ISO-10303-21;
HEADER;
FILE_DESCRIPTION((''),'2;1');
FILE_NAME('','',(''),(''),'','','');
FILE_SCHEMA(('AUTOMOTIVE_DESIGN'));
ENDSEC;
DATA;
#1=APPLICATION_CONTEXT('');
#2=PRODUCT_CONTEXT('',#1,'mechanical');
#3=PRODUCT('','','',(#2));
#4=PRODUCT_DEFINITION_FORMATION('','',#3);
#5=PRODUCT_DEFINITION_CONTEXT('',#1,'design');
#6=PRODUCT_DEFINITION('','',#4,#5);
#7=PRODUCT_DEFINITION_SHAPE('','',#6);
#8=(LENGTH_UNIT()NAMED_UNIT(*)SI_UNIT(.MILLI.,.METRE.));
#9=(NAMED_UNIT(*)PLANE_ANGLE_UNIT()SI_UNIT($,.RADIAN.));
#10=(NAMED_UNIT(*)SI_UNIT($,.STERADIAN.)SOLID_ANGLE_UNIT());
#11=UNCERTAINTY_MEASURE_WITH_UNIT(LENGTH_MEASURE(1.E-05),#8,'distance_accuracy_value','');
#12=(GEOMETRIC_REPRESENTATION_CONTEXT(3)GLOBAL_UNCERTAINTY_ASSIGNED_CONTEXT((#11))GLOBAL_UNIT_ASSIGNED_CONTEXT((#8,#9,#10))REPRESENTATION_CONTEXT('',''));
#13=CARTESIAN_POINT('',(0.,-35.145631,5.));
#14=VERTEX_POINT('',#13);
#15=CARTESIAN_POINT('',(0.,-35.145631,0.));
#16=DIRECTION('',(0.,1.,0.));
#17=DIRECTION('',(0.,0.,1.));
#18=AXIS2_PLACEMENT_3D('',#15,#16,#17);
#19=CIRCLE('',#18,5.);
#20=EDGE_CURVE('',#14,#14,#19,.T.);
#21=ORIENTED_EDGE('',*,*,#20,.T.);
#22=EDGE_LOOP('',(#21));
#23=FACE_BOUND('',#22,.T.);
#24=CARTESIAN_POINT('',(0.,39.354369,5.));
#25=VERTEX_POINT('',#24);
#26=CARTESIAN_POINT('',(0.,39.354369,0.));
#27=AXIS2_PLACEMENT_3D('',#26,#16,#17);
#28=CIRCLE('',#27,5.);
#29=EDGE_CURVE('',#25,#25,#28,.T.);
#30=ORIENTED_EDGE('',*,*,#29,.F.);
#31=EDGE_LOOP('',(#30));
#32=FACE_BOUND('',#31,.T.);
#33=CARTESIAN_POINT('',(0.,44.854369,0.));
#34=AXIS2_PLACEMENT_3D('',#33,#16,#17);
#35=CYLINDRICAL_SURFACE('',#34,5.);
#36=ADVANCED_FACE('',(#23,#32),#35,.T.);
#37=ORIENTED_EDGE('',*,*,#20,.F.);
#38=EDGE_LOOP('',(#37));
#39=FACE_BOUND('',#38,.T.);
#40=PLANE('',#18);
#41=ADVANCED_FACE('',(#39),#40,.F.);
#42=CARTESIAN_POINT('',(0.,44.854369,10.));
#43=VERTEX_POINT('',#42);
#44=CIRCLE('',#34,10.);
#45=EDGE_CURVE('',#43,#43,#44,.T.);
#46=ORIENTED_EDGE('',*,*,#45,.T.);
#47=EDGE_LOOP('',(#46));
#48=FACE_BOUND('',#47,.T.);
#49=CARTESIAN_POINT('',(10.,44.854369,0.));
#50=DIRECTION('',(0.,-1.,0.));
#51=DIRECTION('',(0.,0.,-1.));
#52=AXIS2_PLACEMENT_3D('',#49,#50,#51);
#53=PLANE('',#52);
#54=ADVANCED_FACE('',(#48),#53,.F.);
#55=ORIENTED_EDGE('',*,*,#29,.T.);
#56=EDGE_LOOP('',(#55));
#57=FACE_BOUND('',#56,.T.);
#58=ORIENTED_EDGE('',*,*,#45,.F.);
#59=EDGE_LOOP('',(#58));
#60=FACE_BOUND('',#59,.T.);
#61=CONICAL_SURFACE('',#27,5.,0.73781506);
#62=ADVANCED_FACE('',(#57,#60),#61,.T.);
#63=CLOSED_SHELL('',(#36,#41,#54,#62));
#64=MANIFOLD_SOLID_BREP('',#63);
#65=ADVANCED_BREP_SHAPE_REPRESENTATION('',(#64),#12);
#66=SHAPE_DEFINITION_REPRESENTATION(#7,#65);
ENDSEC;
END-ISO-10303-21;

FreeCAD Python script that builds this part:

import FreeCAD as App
import Part
import Sketcher
Q = App.Units.Quantity


def add_polygon(sketch, points):
    """Adds a closed chain of lines whose ends are joined by coincident constraints."""
    first, n = sketch.GeometryCount, len(points)
    for a, b in zip(points, points[1:] + points[:1]):
        sketch.addGeometry(Part.LineSegment(App.Vector(*a, 0), App.Vector(*b, 0)), False)
    for i in range(n):
        sketch.addConstraint(Sketcher.Constraint("Coincident", first + i, 2, first + (i + 1) % n, 1))

doc = App.newDocument("Part")
body = doc.addObject("PartDesign::Body", "Body")

# Sketch on XY plane
sketch1 = body.newObject("Sketcher::SketchObject", "Sketch")
sketch1.AttachmentSupport = (doc.getObject("XY_Plane"), [""])
sketch1.MapMode = "FlatFace"
add_polygon(sketch1, [(0, -35), (5, -35), (5, 39), (10, 45), (0, 45)])  # lines 0-4
sketch1.addConstraint([
    Sketcher.Constraint("Horizontal", 0),
    Sketcher.Constraint("Vertical", 1),
    Sketcher.Constraint("Horizontal", 3),
    Sketcher.Constraint("Vertical", 4),
    Sketcher.Constraint("PointOnObject", 3, 2, -2),
    Sketcher.Constraint("DistanceX", 0, 1, 0, 2, Q("5 mm")),
    Sketcher.Constraint("DistanceX", 3, 2, 3, 1, Q("10 mm")),
    Sketcher.Constraint("DistanceY", 4, 2, 4, 1, Q("80 mm")),
    Sketcher.Constraint("DistanceY", 1, 1, 1, 2, Q("74.5 mm")),
    Sketcher.Constraint("DistanceY", 0, 2, -1, 1, Q("35.145631 mm")),
])
revolution = body.newObject("PartDesign::Revolution", "Revolution")
revolution.Profile = sketch1
revolution.ReferenceAxis = (sketch1, ["V_Axis"])
revolution.Angle = 360

doc.recompute()
